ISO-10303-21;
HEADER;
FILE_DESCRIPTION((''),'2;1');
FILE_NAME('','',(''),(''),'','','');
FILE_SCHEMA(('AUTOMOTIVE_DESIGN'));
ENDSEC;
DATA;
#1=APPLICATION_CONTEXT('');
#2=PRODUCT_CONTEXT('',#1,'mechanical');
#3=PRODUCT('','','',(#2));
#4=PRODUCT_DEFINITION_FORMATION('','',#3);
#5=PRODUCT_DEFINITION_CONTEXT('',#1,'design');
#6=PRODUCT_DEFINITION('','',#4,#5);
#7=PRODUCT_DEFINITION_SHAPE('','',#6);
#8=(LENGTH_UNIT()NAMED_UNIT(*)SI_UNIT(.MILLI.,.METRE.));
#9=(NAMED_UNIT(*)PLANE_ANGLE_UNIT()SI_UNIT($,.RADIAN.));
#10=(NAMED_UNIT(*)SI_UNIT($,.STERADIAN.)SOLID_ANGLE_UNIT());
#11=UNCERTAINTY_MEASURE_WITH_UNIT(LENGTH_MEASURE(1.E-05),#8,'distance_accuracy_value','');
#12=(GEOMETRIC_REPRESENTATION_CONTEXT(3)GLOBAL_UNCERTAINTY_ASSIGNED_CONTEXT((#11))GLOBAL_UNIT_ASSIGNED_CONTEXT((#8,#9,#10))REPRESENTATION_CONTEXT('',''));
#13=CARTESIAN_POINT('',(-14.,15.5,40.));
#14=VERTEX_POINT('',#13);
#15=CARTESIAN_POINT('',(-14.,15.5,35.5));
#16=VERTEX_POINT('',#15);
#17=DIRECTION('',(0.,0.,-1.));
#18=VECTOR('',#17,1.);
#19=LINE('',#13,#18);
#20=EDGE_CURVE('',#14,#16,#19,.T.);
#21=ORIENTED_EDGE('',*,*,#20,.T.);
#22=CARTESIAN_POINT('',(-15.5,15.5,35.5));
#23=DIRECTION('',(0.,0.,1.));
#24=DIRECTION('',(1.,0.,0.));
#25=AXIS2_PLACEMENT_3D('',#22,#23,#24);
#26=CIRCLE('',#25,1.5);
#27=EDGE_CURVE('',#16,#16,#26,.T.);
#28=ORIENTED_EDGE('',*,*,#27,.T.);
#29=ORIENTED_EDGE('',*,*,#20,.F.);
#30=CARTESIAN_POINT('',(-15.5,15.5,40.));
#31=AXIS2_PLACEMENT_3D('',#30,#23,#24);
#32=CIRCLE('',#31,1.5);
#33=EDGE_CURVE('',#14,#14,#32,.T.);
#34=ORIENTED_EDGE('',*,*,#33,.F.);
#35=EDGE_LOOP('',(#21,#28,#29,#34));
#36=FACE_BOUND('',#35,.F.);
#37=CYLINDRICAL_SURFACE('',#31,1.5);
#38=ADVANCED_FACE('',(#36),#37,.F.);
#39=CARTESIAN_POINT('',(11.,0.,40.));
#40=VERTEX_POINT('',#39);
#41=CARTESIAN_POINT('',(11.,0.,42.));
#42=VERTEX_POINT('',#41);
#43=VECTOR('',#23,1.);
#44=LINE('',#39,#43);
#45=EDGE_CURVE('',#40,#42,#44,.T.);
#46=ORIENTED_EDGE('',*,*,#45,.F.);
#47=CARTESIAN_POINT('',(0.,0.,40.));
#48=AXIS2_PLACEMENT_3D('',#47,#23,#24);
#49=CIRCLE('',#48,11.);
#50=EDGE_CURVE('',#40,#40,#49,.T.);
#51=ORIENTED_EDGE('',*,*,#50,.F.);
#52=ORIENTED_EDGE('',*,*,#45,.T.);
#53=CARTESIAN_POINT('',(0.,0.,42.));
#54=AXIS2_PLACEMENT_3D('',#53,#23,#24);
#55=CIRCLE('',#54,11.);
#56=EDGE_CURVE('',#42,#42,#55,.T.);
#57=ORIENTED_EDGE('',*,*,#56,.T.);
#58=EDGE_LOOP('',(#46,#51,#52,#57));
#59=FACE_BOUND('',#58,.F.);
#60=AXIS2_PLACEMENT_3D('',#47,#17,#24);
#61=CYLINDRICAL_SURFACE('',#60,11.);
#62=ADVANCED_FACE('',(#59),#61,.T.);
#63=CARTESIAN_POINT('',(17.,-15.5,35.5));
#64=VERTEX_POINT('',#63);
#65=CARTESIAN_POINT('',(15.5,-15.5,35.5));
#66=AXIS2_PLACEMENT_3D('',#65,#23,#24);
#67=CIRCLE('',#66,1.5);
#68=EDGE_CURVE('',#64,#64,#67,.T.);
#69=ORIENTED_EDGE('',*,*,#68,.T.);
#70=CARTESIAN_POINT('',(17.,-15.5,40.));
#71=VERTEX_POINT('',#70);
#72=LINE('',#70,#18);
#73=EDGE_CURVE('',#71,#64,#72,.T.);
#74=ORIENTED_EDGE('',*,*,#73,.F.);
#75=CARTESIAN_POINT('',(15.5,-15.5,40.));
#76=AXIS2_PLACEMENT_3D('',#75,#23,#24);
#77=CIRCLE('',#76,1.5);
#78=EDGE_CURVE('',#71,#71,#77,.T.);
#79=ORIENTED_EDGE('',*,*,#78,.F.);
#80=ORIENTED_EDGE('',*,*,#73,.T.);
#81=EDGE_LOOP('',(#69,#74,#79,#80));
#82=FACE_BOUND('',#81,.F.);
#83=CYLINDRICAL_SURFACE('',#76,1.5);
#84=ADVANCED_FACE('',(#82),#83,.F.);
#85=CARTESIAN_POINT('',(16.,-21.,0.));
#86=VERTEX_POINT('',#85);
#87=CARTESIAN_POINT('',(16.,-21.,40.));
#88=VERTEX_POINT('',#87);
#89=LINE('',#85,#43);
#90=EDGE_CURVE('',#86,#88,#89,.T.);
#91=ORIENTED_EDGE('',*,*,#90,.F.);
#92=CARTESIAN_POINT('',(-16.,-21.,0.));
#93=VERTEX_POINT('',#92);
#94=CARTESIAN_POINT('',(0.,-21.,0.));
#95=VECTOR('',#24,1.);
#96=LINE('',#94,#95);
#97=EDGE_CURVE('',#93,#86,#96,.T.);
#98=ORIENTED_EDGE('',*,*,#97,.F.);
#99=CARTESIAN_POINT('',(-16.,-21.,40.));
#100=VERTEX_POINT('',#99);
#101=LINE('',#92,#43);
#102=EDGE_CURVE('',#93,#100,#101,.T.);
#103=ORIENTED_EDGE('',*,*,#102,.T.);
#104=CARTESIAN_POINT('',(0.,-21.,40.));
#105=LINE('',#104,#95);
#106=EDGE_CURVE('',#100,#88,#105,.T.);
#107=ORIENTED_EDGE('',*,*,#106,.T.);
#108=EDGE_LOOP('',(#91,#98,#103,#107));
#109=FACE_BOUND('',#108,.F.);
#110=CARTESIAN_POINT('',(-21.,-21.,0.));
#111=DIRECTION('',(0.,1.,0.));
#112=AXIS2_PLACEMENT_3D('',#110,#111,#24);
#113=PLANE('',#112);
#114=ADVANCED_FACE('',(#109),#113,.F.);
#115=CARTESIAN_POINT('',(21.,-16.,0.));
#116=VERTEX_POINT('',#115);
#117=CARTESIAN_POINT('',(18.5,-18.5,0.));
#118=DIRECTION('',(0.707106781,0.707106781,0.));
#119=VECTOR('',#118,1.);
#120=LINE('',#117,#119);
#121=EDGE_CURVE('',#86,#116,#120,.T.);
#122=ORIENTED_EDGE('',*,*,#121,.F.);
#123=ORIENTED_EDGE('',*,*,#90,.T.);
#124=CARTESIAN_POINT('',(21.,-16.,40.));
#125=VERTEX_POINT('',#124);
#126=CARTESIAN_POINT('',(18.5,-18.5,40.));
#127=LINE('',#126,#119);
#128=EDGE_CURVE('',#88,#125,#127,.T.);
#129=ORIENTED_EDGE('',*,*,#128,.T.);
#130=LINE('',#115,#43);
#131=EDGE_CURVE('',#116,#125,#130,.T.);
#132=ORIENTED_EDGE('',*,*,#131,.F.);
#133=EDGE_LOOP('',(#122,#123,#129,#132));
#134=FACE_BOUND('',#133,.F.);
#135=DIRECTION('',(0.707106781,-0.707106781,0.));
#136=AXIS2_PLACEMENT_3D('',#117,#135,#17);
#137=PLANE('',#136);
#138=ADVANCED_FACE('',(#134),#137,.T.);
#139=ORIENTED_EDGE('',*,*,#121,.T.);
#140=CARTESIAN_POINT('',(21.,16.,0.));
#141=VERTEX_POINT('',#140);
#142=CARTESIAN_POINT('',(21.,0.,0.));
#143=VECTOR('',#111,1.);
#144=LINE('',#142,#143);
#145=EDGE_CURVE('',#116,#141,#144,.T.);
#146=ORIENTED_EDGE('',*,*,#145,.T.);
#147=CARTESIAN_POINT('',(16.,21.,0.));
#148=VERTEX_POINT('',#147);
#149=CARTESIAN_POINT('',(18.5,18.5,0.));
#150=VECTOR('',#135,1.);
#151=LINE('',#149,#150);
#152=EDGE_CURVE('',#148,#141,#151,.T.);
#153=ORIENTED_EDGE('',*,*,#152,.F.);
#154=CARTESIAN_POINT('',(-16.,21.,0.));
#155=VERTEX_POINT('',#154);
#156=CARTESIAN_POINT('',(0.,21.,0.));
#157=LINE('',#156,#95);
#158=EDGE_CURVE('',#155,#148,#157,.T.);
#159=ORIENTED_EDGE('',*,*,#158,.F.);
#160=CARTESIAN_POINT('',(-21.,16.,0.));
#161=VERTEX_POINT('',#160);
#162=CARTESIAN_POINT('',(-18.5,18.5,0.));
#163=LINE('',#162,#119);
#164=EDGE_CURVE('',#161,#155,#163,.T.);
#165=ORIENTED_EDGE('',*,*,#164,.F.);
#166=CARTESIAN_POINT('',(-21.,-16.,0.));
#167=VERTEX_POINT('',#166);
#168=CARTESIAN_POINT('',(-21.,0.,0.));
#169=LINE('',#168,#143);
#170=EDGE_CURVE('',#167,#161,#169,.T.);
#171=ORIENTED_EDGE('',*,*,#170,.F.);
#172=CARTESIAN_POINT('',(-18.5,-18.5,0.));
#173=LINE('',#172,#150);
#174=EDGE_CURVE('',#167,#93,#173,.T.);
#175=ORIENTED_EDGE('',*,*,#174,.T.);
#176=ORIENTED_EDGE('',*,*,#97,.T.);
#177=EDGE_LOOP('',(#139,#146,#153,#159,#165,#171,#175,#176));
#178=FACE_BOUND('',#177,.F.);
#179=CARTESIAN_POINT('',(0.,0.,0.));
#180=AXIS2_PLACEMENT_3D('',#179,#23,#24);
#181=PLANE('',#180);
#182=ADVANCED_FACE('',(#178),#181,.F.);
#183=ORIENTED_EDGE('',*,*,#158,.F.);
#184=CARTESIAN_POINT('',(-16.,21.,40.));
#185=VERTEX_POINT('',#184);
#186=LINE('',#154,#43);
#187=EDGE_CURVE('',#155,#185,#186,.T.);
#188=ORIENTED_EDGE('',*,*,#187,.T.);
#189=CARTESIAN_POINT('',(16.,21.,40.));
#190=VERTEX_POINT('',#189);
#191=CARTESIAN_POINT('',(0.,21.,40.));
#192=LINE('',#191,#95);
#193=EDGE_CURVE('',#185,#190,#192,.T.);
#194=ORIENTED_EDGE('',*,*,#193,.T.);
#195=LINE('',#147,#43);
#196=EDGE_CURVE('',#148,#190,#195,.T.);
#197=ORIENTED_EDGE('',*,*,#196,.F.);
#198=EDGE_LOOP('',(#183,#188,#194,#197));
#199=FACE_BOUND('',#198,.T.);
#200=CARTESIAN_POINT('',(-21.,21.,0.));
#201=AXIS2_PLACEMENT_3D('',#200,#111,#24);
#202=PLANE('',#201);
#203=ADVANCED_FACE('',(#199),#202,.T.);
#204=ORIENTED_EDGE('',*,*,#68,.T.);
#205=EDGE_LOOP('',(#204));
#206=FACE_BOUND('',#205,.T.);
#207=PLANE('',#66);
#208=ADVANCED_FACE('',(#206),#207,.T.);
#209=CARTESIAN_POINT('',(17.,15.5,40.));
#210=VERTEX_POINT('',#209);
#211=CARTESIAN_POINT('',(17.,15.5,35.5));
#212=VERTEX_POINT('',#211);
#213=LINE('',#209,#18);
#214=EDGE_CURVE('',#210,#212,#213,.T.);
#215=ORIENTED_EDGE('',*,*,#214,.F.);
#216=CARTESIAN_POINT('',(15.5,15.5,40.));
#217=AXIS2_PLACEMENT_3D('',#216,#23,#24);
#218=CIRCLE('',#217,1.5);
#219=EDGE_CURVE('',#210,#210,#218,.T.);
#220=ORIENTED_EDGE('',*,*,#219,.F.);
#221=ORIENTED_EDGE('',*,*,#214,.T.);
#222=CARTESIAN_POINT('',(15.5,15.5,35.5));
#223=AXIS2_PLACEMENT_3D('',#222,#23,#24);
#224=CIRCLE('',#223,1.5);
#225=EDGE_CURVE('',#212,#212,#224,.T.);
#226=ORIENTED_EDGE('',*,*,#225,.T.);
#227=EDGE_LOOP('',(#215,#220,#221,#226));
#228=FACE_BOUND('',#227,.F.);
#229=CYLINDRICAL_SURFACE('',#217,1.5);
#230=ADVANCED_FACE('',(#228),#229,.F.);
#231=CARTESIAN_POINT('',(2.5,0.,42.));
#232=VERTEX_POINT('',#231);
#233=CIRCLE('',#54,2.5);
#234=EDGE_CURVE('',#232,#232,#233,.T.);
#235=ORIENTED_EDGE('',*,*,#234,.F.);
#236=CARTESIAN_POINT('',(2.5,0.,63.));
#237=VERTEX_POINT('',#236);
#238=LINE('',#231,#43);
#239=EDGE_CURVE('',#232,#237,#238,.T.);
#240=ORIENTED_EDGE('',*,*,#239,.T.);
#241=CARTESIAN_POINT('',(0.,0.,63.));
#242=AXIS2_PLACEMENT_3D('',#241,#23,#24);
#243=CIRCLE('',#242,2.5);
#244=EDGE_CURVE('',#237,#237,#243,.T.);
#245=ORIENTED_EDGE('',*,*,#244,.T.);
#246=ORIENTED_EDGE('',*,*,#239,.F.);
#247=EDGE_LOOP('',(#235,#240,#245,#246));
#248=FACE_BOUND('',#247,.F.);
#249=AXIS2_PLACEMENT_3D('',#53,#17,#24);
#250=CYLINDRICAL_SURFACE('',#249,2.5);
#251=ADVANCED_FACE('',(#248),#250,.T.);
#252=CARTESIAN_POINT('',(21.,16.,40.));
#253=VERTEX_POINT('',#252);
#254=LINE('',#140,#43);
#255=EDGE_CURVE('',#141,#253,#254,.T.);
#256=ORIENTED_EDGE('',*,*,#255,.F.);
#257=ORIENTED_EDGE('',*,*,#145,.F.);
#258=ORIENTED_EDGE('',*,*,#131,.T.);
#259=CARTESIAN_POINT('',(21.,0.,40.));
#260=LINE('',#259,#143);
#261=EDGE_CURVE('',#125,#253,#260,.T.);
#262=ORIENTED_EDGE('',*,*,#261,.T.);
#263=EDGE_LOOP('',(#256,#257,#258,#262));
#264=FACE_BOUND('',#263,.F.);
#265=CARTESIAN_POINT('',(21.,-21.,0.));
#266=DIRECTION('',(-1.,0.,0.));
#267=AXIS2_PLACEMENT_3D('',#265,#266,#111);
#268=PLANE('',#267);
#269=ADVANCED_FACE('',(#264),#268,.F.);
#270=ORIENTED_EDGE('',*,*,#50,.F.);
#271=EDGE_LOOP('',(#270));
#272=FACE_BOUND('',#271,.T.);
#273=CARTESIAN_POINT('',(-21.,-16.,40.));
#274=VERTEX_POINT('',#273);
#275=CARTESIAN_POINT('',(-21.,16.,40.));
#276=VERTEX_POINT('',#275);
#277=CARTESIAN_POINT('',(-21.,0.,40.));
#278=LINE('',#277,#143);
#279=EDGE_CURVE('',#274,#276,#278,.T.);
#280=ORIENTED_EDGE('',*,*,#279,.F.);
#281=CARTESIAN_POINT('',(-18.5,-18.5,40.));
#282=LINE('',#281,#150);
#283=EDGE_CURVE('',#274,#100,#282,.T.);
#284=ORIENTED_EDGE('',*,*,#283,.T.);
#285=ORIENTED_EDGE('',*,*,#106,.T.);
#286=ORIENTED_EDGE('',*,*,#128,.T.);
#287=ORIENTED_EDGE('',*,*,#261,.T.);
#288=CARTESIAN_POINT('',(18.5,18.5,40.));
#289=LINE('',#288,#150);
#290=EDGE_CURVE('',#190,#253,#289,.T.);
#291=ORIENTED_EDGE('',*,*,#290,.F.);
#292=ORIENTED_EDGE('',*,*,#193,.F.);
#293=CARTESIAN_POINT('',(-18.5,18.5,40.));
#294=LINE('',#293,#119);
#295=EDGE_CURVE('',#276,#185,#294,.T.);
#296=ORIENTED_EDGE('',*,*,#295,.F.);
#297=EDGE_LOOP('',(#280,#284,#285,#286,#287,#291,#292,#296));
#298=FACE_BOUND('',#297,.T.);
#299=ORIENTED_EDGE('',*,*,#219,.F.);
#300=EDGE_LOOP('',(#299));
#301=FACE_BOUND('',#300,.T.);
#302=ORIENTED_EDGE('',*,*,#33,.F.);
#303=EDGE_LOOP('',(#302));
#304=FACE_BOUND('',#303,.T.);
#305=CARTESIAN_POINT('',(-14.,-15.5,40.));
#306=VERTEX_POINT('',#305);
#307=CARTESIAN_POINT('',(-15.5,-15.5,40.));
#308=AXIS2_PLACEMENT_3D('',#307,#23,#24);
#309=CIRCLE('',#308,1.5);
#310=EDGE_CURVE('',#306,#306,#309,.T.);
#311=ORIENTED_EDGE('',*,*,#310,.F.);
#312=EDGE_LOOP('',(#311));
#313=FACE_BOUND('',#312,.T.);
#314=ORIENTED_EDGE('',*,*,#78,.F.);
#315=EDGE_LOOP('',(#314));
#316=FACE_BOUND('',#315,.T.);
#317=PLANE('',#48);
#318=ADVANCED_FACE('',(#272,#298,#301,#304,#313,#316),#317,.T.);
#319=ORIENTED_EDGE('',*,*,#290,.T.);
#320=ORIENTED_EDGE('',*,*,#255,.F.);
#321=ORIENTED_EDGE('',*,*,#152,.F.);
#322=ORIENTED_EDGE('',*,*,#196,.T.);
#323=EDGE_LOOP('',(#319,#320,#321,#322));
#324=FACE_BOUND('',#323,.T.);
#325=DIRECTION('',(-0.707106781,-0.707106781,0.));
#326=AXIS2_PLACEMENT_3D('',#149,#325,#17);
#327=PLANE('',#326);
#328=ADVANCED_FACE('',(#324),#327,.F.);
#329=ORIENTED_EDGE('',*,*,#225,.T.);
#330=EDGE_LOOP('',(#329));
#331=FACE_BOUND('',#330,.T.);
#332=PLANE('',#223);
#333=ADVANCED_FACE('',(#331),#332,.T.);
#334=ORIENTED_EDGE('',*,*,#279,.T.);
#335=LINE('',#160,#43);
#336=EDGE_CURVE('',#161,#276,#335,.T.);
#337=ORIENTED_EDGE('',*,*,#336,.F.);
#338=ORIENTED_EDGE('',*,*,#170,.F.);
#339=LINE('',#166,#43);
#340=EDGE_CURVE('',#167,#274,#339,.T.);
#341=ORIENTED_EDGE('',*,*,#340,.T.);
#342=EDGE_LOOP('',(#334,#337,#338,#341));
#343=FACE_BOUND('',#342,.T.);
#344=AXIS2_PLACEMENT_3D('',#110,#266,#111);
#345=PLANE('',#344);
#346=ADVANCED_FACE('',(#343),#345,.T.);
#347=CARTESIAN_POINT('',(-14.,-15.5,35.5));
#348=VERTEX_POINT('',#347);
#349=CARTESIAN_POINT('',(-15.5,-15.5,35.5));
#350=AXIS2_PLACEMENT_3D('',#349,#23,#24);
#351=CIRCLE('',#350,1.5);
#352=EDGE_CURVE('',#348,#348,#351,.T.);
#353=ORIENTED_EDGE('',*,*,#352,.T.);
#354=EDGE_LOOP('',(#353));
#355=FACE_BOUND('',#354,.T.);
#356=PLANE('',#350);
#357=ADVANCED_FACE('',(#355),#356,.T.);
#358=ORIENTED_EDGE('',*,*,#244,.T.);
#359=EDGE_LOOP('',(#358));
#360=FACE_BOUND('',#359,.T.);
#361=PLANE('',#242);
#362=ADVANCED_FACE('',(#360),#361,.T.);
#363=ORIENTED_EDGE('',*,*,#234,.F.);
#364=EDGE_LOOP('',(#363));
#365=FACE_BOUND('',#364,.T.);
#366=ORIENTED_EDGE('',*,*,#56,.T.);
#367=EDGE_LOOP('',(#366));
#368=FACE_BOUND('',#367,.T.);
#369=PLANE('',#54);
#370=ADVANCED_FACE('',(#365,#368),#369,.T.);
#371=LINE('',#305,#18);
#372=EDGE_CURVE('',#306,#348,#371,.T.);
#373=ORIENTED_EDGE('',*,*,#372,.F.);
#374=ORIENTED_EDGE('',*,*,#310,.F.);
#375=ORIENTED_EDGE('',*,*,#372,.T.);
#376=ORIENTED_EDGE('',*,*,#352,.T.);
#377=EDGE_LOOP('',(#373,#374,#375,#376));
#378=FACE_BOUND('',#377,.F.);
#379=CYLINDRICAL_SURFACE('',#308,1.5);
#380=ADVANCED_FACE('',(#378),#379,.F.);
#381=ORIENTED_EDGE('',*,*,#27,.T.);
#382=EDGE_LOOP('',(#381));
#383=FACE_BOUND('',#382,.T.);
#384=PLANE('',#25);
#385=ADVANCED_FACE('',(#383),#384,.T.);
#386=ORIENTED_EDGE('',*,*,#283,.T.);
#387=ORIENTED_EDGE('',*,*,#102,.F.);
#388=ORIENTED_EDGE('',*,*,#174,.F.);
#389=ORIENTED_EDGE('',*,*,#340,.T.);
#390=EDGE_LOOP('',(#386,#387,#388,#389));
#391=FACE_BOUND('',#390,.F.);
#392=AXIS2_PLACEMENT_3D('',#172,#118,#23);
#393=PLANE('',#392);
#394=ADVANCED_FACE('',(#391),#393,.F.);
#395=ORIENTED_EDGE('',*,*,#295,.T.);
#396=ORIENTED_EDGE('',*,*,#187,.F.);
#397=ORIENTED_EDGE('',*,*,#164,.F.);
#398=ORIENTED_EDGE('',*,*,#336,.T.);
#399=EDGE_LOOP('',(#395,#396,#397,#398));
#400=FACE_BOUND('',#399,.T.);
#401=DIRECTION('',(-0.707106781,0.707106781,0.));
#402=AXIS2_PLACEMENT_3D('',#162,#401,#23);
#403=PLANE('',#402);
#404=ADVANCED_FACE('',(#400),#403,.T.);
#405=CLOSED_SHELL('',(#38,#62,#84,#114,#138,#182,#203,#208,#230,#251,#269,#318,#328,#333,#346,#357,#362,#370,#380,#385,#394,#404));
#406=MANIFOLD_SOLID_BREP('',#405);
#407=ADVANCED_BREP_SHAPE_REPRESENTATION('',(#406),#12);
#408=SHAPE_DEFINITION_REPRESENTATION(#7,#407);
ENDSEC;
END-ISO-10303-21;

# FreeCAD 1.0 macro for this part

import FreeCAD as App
import Part
import Sketcher


def edges_at(feature, points):
    """Names of the edges that pass closest to the given points."""
    edges = feature.Shape.Edges
    near = lambda p: min(range(len(edges)), key=lambda i: edges[i].distToShape(Part.Vertex(*p))[0])
    return sorted({f"Edge{near(p) + 1}" for p in points})

doc = App.newDocument("Part")
params = doc.addObject("Spreadsheet::Sheet", "Params")
for row, (alias, value) in enumerate([
    ("sketch1_width", "42 mm"),
    ("pad1_length", "40 mm"),
    ("sketch2_diameter", "22 mm"),
    ("pad2_length", "2 mm"),
    ("sketch3_diameter", "5 mm"),
    ("pad3_length", "21 mm"),
    ("sketch4_diameter", "3 mm"),
    ("pocket1_length", "4.5 mm"),
    ("chamfer_size", "5 mm"),
], start=1):
    params.set(f"A{row}", alias)
    params.set(f"B{row}", "=" + value)
    params.setAlias(f"B{row}", alias)

body = doc.addObject("PartDesign::Body", "Body")

# Sketch on XY plane
sketch1 = body.newObject("Sketcher::SketchObject", "Sketch")
sketch1.AttachmentSupport = (doc.getObject("XY_Plane"), [""])
sketch1.MapMode = "FlatFace"
sketch1.addGeometry([
    Part.LineSegment(App.Vector(-21, 21, 0), App.Vector(-21, -21, 0)),
    Part.LineSegment(App.Vector(-21, -21, 0), App.Vector(21, -21, 0)),
    Part.LineSegment(App.Vector(21, -21, 0), App.Vector(21, 21, 0)),
    Part.LineSegment(App.Vector(21, 21, 0), App.Vector(-21, 21, 0)),
], False)
sketch1.addConstraint([
    Sketcher.Constraint("Coincident", 0, 2, 1, 1),
    Sketcher.Constraint("Coincident", 1, 2, 2, 1),
    Sketcher.Constraint("Coincident", 2, 2, 3, 1),
    Sketcher.Constraint("Coincident", 3, 2, 0, 1),
    Sketcher.Constraint("Vertical", 0),
    Sketcher.Constraint("Horizontal", 1),
    Sketcher.Constraint("Vertical", 2),
    Sketcher.Constraint("Horizontal", 3),
    Sketcher.Constraint("Symmetric", 0, 2, 2, 2, -1, 1),
    Sketcher.Constraint("Equal", 3, 0),
    Sketcher.Constraint("DistanceX", 1, 1, 1, 2, 42.0),
])
sketch1.setExpression("Constraints[10]", "Params.sketch1_width")
pad1 = body.newObject("PartDesign::Pad", "Pad")
pad1.Profile = sketch1
pad1.setExpression("Length", "Params.pad1_length")

# Sketch on XY plane
sketch2 = body.newObject("Sketcher::SketchObject", "Sketch001")
sketch2.AttachmentSupport = (doc.getObject("XY_Plane"), [""])
sketch2.MapMode = "FlatFace"
sketch2.AttachmentOffset = App.Placement(App.Vector(0, 0, 40), App.Rotation())
sketch2.addGeometry(Part.Circle(App.Vector(0, 0, 0), App.Vector(0, 0, 1), 11), False)
sketch2.addConstraint([
    Sketcher.Constraint("Coincident", 0, 3, -1, 1),
    Sketcher.Constraint("Diameter", 0, 22.0),
])
sketch2.setExpression("Constraints[1]", "Params.sketch2_diameter")
pad2 = body.newObject("PartDesign::Pad", "Pad001")
pad2.Profile = sketch2
pad2.setExpression("Length", "Params.pad2_length")

# Sketch on XY plane
sketch3 = body.newObject("Sketcher::SketchObject", "Sketch002")
sketch3.AttachmentSupport = (doc.getObject("XY_Plane"), [""])
sketch3.MapMode = "FlatFace"
sketch3.AttachmentOffset = App.Placement(App.Vector(0, 0, 42), App.Rotation())
sketch3.addGeometry(Part.Circle(App.Vector(0, 0, 0), App.Vector(0, 0, 1), 2.5), False)
sketch3.addConstraint([
    Sketcher.Constraint("Coincident", 0, 3, -1, 1),
    Sketcher.Constraint("Diameter", 0, 5.0),
])
sketch3.setExpression("Constraints[1]", "Params.sketch3_diameter")
pad3 = body.newObject("PartDesign::Pad", "Pad002")
pad3.Profile = sketch3
pad3.setExpression("Length", "Params.pad3_length")

# Sketch on XY plane
sketch4 = body.newObject("Sketcher::SketchObject", "Sketch003")
sketch4.AttachmentSupport = (doc.getObject("XY_Plane"), [""])
sketch4.MapMode = "FlatFace"
sketch4.AttachmentOffset = App.Placement(App.Vector(0, 0, 40), App.Rotation())
sketch4.addGeometry([
    Part.Circle(App.Vector(-15.5, 15.5, 0), App.Vector(0, 0, 1), 1.5),
    Part.Circle(App.Vector(-15.5, -15.5, 0), App.Vector(0, 0, 1), 1.5),
    Part.Circle(App.Vector(15.5, 15.5, 0), App.Vector(0, 0, 1), 1.5),
    Part.Circle(App.Vector(15.5, -15.5, 0), App.Vector(0, 0, 1), 1.5),
], False)
sketch4.addConstraint([
    Sketcher.Constraint("Equal", 0, 1),
    Sketcher.Constraint("Equal", 1, 2),
    Sketcher.Constraint("Equal", 2, 3),
    Sketcher.Constraint("Symmetric", 1, 3, 2, 3, -1, 1),
    Sketcher.Constraint("Symmetric", 0, 3, 3, 3, -1, 1),
    Sketcher.Constraint("Symmetric", 0, 3, 2, 3, -2),
    Sketcher.Constraint("Diameter", 0, 3.0),
    Sketcher.Constraint("DistanceY", 1, 3, 0, 3, 31.0),
    Sketcher.Constraint("DistanceX", 0, 3, 2, 3, 31.0),
])
sketch4.setExpression("Constraints[6]", "Params.sketch4_diameter")
pocket1 = body.newObject("PartDesign::Pocket", "Pocket")
pocket1.Profile = sketch4
pocket1.setExpression("Length", "Params.pocket1_length")
doc.recompute()

chamfer = body.newObject("PartDesign::Chamfer", "Chamfer")
chamfer.Base = (pocket1, edges_at(pocket1, [
    (21, 21, 20),
    (21, -21, 20),
    (-21, -21, 20),
    (-21, 21, 20),
]))
chamfer.setExpression("Size", "Params.chamfer_size")

doc.recompute()
